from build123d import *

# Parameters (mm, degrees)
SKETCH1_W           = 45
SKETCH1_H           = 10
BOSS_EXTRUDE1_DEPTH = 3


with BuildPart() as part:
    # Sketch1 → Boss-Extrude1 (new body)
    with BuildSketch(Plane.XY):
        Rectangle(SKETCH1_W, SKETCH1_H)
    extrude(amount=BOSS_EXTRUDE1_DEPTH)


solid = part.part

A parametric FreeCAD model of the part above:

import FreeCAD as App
import Part
import Sketcher

V = App.Vector
Q = App.Units.Quantity


def add_polygon(sketch, points):
    """Adds a closed chain of lines whose ends are joined by coincident constraints."""
    first, n = sketch.GeometryCount, len(points)
    for a, b in zip(points, points[1:] + points[:1]):
        sketch.addGeometry(Part.LineSegment(App.Vector(*a, 0), App.Vector(*b, 0)), False)
    for i in range(n):
        sketch.addConstraint(Sketcher.Constraint("Coincident", first + i, 2, first + (i + 1) % n, 1))

doc = App.newDocument("Part")
params = doc.addObject("Spreadsheet::Sheet", "Params")
for row, (alias, value) in enumerate([
    ("sketch1_width", "45 mm"),
    ("sketch1_height", "10 mm"),
    ("pad1_length", "3 mm"),
], start=1):
    params.set(f"A{row}", alias)
    params.set(f"B{row}", "=" + value)
    params.setAlias(f"B{row}", alias)

body = doc.addObject("PartDesign::Body", "Body")

sketch1 = doc.addObject("Sketcher::SketchObject", "Sketch")
body.addObject(sketch1)
sketch1.AttachmentSupport = (doc.XY_Plane, [""])
sketch1.MapMode = "FlatFace"
add_polygon(sketch1, [(-22.5, 5), (-22.5, -5), (22.5, -5), (22.5, 5)])
sketch1.addConstraint([
    Sketcher.Constraint("Vertical", 0),
    Sketcher.Constraint("Horizontal", 1),
    Sketcher.Constraint("Vertical", 2),
    Sketcher.Constraint("Horizontal", 3),
    Sketcher.Constraint("Symmetric", 0, 2, 2, 2, -1, 1),
    Sketcher.Constraint("DistanceX", 1, 1, 1, 2, Q("45 mm")),
    Sketcher.Constraint("DistanceY", 0, 2, 0, 1, Q("10 mm")),
])
sketch1.setExpression("Constraints[9]", "Params.sketch1_width")
sketch1.setExpression("Constraints[10]", "Params.sketch1_height")
pad1 = doc.addObject("PartDesign::Pad", "Pad")
body.addObject(pad1)
pad1.Profile = sketch1
pad1.setExpression("Length", "Params.pad1_length")

doc.recompute()
